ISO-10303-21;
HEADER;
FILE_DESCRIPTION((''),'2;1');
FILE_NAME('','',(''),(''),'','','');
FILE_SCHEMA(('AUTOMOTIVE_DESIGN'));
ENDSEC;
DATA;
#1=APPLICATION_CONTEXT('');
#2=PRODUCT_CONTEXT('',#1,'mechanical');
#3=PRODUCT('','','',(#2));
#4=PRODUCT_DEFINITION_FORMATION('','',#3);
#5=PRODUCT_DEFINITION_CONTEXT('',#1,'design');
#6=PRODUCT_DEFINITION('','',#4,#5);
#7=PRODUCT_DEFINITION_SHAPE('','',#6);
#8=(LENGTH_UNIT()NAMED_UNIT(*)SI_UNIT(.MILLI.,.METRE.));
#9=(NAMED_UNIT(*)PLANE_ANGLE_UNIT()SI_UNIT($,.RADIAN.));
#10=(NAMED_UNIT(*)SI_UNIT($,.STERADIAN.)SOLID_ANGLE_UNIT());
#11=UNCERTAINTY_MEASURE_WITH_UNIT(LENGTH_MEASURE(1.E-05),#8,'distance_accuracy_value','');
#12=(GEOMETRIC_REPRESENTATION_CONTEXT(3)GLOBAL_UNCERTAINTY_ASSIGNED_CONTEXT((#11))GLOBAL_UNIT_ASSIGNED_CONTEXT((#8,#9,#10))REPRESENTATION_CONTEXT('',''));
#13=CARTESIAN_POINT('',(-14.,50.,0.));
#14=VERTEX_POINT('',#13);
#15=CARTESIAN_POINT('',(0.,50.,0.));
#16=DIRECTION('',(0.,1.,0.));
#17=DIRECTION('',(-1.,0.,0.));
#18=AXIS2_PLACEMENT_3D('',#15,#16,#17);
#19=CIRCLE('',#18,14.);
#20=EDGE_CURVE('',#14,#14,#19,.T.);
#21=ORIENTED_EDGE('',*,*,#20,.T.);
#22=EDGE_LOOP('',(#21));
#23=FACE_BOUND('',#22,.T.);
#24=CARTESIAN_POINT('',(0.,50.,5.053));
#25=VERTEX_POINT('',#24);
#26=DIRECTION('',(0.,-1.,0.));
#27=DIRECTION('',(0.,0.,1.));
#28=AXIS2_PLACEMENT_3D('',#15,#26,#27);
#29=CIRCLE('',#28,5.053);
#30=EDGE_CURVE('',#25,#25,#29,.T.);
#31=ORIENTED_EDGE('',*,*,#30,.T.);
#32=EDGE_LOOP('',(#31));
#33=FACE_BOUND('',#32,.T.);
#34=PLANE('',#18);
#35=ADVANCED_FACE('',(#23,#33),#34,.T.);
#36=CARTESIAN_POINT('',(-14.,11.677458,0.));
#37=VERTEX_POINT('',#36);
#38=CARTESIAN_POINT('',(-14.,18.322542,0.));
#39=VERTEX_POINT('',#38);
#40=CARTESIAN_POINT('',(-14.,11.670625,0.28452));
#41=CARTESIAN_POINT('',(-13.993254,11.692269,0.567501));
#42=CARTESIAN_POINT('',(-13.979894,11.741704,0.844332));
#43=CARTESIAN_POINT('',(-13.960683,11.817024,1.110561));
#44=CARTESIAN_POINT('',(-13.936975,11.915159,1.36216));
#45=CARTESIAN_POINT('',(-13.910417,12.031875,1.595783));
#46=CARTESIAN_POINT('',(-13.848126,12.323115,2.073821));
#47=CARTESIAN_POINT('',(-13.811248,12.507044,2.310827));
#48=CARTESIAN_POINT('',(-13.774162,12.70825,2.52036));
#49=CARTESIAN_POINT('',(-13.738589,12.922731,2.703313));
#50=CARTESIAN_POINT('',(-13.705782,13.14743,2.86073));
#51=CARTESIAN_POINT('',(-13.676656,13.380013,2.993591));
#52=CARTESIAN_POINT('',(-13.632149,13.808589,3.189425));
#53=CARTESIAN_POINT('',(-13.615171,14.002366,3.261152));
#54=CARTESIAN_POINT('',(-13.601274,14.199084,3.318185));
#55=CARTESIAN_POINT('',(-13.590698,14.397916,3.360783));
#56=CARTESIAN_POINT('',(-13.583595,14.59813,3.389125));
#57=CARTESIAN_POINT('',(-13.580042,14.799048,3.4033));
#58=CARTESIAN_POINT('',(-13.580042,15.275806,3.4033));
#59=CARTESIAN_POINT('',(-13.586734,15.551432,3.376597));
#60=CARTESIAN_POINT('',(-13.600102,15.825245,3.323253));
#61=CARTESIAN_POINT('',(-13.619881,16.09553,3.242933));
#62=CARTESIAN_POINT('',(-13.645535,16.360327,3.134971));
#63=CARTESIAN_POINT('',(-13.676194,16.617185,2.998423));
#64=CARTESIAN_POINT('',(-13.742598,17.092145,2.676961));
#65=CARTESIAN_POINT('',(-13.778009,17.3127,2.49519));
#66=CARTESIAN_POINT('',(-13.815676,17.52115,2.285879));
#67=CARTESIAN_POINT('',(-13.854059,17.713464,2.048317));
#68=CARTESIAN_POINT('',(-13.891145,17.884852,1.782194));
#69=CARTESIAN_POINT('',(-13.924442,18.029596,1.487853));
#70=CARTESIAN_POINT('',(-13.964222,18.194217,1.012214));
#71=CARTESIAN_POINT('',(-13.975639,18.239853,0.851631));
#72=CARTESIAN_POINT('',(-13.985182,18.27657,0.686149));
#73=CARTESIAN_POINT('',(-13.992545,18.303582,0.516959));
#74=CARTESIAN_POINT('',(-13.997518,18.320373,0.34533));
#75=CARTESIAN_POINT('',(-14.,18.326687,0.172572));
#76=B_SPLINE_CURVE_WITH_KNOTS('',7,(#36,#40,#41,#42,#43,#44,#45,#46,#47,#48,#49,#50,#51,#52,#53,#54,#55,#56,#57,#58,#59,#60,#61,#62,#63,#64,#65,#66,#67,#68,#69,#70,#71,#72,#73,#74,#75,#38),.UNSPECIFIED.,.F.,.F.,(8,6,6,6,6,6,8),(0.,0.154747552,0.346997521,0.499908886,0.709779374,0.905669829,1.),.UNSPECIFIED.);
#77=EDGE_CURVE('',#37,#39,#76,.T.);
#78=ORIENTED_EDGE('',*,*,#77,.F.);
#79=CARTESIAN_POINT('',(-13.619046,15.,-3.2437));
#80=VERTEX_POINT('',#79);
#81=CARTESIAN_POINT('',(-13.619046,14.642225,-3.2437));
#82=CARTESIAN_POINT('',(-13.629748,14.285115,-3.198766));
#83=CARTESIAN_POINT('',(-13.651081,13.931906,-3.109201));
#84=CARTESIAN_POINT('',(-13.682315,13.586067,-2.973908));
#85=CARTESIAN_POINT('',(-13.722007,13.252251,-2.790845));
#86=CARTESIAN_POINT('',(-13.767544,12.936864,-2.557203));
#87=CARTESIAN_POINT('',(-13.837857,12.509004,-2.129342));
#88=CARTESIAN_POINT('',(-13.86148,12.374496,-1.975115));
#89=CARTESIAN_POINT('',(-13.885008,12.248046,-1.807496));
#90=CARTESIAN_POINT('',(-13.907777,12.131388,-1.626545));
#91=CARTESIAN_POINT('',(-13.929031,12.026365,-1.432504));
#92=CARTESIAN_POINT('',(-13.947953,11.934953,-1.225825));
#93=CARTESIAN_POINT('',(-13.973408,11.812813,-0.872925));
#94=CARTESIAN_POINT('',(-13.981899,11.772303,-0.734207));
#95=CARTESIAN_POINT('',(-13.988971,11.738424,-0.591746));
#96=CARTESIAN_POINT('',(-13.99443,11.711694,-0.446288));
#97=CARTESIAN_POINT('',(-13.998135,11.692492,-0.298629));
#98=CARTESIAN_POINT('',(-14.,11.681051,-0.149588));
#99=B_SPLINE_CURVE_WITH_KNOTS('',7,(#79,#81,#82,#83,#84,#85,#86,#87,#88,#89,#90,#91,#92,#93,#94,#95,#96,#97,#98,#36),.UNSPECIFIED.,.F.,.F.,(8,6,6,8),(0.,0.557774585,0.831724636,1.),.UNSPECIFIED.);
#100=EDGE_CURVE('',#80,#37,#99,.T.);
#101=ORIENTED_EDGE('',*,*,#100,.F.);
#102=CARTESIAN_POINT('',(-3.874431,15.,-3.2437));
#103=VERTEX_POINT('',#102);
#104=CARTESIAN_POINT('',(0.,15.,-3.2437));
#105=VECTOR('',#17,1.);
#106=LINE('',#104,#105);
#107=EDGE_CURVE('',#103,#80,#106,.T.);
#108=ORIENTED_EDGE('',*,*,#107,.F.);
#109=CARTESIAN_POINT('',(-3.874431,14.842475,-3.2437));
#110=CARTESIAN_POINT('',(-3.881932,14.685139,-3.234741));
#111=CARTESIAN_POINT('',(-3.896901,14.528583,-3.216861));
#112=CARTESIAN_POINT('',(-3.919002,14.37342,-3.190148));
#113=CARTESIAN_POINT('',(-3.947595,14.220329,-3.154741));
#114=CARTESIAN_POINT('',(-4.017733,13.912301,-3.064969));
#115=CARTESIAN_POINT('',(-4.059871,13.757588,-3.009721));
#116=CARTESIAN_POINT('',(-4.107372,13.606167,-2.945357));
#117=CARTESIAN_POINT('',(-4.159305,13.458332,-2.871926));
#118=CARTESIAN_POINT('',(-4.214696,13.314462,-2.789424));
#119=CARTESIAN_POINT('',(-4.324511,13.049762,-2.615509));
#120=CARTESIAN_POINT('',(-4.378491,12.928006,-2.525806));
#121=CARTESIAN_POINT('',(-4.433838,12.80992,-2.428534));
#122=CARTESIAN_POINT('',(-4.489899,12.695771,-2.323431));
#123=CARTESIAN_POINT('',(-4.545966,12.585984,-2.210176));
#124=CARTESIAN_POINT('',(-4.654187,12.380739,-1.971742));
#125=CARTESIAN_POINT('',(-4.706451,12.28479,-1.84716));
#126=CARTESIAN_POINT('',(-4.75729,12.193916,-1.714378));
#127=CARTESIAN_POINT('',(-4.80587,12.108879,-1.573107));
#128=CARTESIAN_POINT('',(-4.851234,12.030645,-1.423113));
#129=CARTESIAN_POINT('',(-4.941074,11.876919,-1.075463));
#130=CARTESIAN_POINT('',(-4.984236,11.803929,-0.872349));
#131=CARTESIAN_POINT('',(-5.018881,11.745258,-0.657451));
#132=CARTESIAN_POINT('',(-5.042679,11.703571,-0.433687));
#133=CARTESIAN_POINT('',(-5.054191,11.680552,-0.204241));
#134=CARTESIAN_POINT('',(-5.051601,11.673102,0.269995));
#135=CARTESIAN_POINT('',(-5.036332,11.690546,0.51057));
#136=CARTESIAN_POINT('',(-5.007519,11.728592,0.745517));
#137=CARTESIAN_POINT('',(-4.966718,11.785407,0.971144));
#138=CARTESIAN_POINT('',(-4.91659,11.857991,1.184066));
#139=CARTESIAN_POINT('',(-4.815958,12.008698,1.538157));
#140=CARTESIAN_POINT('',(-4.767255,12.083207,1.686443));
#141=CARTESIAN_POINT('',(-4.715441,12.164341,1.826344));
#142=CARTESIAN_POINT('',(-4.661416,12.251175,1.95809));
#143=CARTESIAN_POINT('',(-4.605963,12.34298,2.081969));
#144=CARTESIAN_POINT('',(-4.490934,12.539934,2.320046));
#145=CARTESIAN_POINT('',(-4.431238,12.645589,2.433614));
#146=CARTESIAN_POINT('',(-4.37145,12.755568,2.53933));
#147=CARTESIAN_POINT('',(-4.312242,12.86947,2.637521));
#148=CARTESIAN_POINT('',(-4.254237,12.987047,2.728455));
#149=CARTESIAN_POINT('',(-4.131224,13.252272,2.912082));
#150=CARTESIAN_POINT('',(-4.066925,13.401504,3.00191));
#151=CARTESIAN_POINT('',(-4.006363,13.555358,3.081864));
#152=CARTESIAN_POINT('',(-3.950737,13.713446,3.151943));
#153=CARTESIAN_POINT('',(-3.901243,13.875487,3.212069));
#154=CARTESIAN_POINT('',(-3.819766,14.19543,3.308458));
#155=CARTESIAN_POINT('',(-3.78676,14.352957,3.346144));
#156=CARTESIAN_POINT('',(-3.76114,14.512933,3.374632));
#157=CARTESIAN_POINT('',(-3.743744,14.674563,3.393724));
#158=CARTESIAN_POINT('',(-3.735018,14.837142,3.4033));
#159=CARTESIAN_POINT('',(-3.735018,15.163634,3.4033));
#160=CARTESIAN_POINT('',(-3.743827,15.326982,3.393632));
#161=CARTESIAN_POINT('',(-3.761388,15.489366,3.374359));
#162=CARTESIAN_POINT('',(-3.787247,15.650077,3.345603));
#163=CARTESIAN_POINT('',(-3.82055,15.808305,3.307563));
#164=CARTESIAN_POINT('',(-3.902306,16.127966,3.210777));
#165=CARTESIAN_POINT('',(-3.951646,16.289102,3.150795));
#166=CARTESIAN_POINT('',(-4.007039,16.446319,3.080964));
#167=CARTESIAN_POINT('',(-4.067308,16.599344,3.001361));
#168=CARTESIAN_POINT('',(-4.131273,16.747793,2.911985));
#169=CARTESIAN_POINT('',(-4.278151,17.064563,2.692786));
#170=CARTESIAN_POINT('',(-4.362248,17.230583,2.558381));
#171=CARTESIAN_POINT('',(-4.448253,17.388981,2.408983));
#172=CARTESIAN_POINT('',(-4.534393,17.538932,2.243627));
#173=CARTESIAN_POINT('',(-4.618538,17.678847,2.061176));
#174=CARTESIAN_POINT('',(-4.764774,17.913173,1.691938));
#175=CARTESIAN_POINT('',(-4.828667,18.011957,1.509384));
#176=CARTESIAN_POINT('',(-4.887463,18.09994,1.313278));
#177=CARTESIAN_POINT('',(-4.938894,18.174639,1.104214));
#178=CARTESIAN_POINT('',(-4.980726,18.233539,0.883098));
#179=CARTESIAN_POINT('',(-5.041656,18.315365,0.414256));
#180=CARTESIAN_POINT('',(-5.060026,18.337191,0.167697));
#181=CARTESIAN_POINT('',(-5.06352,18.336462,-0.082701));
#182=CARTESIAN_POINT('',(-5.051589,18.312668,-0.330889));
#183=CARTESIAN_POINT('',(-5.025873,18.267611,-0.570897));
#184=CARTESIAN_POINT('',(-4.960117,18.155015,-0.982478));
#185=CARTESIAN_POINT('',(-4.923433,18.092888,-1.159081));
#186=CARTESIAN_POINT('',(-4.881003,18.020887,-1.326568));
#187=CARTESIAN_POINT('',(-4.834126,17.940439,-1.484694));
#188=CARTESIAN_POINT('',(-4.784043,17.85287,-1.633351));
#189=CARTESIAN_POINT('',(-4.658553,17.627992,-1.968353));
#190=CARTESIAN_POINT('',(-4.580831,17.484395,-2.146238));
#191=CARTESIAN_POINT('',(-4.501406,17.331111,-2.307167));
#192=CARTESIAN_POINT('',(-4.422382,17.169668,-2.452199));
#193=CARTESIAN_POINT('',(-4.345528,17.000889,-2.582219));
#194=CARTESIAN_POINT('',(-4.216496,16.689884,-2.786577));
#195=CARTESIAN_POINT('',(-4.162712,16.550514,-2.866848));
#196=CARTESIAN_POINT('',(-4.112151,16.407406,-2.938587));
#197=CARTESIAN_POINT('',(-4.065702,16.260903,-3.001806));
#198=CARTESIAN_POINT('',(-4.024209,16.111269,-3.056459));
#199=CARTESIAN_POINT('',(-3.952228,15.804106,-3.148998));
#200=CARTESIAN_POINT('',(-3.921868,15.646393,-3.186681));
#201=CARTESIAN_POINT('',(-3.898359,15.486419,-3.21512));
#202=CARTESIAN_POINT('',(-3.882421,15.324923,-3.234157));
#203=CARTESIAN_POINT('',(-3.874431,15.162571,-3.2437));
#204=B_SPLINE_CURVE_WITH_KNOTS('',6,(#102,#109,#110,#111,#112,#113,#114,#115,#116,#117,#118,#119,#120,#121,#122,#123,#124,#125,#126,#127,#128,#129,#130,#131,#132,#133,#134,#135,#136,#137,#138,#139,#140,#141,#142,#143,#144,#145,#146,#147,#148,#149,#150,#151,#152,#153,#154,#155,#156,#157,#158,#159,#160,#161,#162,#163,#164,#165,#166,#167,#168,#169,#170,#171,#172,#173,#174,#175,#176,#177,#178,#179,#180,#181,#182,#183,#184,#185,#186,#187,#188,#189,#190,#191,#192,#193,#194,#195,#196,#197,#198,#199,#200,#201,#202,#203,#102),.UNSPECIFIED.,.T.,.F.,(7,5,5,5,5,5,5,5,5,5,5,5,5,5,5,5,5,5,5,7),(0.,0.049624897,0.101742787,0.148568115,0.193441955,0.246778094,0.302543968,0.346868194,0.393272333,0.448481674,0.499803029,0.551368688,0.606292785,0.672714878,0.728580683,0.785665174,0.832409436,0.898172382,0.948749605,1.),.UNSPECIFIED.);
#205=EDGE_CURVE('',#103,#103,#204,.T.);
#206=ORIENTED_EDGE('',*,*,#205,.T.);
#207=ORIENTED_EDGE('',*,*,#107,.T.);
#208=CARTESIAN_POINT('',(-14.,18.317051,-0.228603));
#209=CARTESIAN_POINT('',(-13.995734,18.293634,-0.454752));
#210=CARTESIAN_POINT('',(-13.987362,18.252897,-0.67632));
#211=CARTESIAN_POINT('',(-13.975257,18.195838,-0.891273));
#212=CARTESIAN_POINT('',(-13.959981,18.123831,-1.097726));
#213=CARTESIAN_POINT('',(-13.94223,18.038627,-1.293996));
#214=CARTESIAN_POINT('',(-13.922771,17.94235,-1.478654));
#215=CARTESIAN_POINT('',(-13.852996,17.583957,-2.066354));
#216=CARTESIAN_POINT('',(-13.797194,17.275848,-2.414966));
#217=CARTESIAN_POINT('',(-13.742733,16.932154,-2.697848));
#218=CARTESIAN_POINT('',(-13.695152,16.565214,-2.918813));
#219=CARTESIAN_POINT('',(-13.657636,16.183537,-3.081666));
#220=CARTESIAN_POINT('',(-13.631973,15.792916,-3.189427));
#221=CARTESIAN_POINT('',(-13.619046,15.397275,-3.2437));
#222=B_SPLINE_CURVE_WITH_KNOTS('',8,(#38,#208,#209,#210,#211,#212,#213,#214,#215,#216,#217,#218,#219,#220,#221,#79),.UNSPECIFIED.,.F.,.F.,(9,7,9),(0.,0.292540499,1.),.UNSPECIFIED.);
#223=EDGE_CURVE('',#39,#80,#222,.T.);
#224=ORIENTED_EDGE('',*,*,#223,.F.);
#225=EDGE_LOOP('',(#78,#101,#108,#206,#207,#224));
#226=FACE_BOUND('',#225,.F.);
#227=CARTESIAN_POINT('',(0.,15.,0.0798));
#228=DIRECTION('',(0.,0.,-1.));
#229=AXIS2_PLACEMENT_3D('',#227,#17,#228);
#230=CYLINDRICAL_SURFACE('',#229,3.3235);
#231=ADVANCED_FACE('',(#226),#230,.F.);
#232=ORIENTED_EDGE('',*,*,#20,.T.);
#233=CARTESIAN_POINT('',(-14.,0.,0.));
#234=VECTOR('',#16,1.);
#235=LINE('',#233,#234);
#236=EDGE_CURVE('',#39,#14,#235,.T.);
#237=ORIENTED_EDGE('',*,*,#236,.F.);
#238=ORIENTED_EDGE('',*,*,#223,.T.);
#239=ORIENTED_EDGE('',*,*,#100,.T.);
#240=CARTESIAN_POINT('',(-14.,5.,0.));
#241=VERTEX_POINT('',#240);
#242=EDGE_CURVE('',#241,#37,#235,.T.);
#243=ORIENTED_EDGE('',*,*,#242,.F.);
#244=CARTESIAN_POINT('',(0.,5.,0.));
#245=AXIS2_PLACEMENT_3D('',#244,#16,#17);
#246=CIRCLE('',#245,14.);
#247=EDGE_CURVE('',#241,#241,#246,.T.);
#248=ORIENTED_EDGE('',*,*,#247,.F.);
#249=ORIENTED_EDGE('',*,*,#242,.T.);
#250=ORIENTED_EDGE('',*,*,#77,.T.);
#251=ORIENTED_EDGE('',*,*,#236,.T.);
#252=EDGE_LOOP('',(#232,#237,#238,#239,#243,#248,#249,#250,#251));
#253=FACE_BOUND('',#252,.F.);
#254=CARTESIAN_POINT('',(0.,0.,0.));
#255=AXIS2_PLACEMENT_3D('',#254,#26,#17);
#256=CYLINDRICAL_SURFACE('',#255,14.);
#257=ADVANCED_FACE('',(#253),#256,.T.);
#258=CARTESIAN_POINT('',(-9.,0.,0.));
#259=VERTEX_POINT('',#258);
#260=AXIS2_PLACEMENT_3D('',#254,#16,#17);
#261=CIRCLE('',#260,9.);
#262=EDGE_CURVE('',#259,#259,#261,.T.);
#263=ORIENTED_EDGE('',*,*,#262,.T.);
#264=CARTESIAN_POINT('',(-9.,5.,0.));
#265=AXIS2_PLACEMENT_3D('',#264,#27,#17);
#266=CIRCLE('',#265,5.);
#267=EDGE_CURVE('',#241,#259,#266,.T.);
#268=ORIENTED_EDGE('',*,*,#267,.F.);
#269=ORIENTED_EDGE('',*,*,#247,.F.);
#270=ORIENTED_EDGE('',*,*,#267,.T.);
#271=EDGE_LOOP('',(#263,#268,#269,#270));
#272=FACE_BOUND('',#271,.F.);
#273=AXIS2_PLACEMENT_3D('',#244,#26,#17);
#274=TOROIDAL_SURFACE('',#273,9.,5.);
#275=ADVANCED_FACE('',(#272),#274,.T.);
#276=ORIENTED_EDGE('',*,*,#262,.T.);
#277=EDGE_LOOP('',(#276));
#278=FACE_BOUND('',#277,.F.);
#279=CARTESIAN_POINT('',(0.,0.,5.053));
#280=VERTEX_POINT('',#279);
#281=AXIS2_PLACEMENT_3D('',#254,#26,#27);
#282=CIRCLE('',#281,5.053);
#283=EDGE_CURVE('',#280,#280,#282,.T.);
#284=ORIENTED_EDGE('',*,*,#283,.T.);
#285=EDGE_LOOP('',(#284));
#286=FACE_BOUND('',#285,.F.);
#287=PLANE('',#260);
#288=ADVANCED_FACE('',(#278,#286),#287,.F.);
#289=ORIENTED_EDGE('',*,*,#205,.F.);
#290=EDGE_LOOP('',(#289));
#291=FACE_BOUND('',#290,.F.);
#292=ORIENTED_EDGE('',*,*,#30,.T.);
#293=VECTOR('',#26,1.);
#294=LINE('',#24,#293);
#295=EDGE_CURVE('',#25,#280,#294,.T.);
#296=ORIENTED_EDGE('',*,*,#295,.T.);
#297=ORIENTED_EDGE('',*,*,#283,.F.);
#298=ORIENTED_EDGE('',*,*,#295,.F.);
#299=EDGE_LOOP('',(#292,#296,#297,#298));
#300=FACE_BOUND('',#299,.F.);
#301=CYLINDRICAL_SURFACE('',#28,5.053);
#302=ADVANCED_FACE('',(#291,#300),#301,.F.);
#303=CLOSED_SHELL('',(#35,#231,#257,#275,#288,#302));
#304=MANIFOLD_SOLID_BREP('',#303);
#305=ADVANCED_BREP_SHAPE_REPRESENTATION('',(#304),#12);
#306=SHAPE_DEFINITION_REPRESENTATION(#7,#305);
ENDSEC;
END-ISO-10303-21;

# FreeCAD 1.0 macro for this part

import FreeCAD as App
import Part
import Sketcher

V = App.Vector
Q = App.Units.Quantity


def edges_at(feature, points):
    """Names of the edges that pass closest to the given points."""
    edges = feature.Shape.Edges
    near = lambda p: min(range(len(edges)), key=lambda i: edges[i].distToShape(Part.Vertex(*p))[0])
    return sorted({f"Edge{near(p) + 1}" for p in points})

doc = App.newDocument("Part")
body = doc.addObject("PartDesign::Body", "Body")

# Sketch on XZ plane
sketch1 = body.newObject("Sketcher::SketchObject", "Sketch")
sketch1.AttachmentSupport = (doc.getObject("XZ_Plane"), [""])
sketch1.MapMode = "FlatFace"
sketch1.addGeometry(Part.Circle(V(0, 0, 0), V(0, 0, 1), 14), False)
sketch1.addConstraint([
    Sketcher.Constraint("Coincident", 0, 3, -1, 1),
    Sketcher.Constraint("Diameter", 0, Q("28 mm")),
])
pad1 = body.newObject("PartDesign::Pad", "Pad")
pad1.Profile = sketch1
pad1.Length = 50
pad1.Reversed = True

# Sketch on XZ plane
sketch2 = body.newObject("Sketcher::SketchObject", "Sketch001")
sketch2.AttachmentSupport = (doc.getObject("XZ_Plane"), [""])
sketch2.MapMode = "FlatFace"
sketch2.AttachmentOffset = App.Placement(V(0, 0, -50), App.Rotation())
sketch2.addGeometry(Part.Circle(V(0, 0, 0), V(0, 0, 1), 5), False)
sketch2.addConstraint([
    Sketcher.Constraint("Coincident", 0, 3, -1, 1),
    Sketcher.Constraint("Diameter", 0, Q("10.106 mm")),
])
doc.recompute()
hole = body.newObject("PartDesign::Hole", "Hole")
hole.Profile = sketch2
hole.ThreadType = "None"
hole.Diameter = 10.106
hole.DepthType = "Dimension"
hole.Depth = 50
hole.DrillPoint = "Angled"
hole.DrillPointAngle = 118
hole.Reversed = True

# Sketch on YZ plane
sketch3 = body.newObject("Sketcher::SketchObject", "Sketch002")
sketch3.AttachmentSupport = (doc.getObject("YZ_Plane"), [""])
sketch3.MapMode = "FlatFace"
sketch3.addGeometry(Part.Circle(V(15, 0.1, 0), V(0, 0, 1), 3.3), False)
sketch3.addConstraint([
    Sketcher.Constraint("Diameter", 0, Q("6.647 mm")),
    Sketcher.Constraint("DistanceX", -1, 1, 0, 3, Q("15 mm")),
    Sketcher.Constraint("DistanceY", -1, 1, 0, 3, Q("0.0798 mm")),
])
doc.recompute()
hole2 = body.newObject("PartDesign::Hole", "Hole001")
hole2.Profile = sketch3
hole2.ThreadType = "None"
hole2.Diameter = 6.647
hole2.DepthType = "Dimension"
hole2.Depth = 22.2
hole2.DrillPoint = "Angled"
hole2.DrillPointAngle = 118
doc.recompute()

fillet = body.newObject("PartDesign::Fillet", "Fillet")
fillet.Base = (hole2, edges_at(hole2, [(14, 0, 0)]))
fillet.Radius = 5

doc.recompute()
